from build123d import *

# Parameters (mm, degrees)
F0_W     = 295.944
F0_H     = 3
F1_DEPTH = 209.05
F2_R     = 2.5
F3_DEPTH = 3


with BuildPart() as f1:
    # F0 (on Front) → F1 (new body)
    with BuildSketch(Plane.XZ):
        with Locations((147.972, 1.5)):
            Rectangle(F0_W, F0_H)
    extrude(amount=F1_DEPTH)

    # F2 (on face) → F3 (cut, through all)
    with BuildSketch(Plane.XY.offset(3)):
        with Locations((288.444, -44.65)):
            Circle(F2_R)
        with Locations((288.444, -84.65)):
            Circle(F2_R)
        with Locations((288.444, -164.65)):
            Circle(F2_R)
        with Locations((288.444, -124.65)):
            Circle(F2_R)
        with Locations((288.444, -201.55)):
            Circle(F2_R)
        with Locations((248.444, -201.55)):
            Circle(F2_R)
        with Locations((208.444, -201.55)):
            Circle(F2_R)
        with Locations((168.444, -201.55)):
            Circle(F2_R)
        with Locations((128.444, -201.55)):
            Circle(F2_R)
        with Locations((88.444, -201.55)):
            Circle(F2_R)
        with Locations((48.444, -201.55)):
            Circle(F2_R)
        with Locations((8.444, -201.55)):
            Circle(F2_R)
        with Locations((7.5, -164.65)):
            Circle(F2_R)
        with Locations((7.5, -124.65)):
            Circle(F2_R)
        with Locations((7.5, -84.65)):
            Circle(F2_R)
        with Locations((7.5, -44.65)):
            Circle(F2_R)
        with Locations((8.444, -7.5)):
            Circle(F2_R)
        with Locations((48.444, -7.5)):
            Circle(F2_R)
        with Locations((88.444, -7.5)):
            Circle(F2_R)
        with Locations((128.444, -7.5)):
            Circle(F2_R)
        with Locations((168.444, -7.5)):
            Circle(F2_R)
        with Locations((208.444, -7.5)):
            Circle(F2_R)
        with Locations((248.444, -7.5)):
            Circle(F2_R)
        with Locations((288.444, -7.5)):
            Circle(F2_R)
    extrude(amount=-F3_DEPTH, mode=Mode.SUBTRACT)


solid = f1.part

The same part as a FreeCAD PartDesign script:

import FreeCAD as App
import Part
import Sketcher
from FreeCAD import Vector
Q = App.Units.Quantity


def add_polygon(sketch, points):
    """Adds a closed chain of lines whose ends are joined by coincident constraints."""
    first, n = sketch.GeometryCount, len(points)
    for a, b in zip(points, points[1:] + points[:1]):
        sketch.addGeometry(Part.LineSegment(App.Vector(*a, 0), App.Vector(*b, 0)), False)
    for i in range(n):
        sketch.addConstraint(Sketcher.Constraint("Coincident", first + i, 2, first + (i + 1) % n, 1))

doc = App.newDocument("Part")
body = doc.addObject("PartDesign::Body", "Body")

# Sketch on XZ plane
sketch1 = body.newObject("Sketcher::SketchObject", "Sketch")
sketch1.AttachmentSupport = (doc.getObject("XZ_Plane"), [""])
sketch1.MapMode = "FlatFace"
add_polygon(sketch1, [(0, 3), (0, 0), (295.9, 0), (295.9, 3)])  # lines 0-3
sketch1.addConstraint([
    Sketcher.Constraint("Vertical", 0),
    Sketcher.Constraint("Horizontal", 1),
    Sketcher.Constraint("Vertical", 2),
    Sketcher.Constraint("Horizontal", 3),
    Sketcher.Constraint("Coincident", 0, 2, -1, 1),
    Sketcher.Constraint("DistanceY", 0, 2, 0, 1, Q("3 mm")),
    Sketcher.Constraint("DistanceX", 1, 1, 1, 2, Q("295.944 mm")),
])
pad1 = body.newObject("PartDesign::Pad", "Pad")
pad1.Profile = sketch1
pad1.Length = 209.05

# Sketch on XY plane
sketch2 = body.newObject("Sketcher::SketchObject", "Sketch001")
sketch2.AttachmentSupport = (doc.getObject("XY_Plane"), [""])
sketch2.MapMode = "FlatFace"
sketch2.AttachmentOffset = App.Placement(Vector(0, 0, 3), App.Rotation())
sketch2.addGeometry([
    Part.Circle(Vector(288.4, -44.6, 0), Vector(0, 0, 1), 2.5),  # 0
    Part.Circle(Vector(288.4, -84.7, 0), Vector(0, 0, 1), 2.5),  # 1
    Part.Circle(Vector(288.4, -164.7, 0), Vector(0, 0, 1), 2.5),  # 2
    Part.Circle(Vector(288.4, -124.7, 0), Vector(0, 0, 1), 2.5),  # 3
    Part.Circle(Vector(288.4, -201.6, 0), Vector(0, 0, 1), 2.5),  # 4
    Part.Circle(Vector(248.4, -201.6, 0), Vector(0, 0, 1), 2.5),  # 5
    Part.Circle(Vector(208.4, -201.6, 0), Vector(0, 0, 1), 2.5),  # 6
    Part.Circle(Vector(168.4, -201.6, 0), Vector(0, 0, 1), 2.5),  # 7
    Part.Circle(Vector(128.4, -201.6, 0), Vector(0, 0, 1), 2.5),  # 8
    Part.Circle(Vector(88.4, -201.6, 0), Vector(0, 0, 1), 2.5),  # 9
    Part.Circle(Vector(48.4, -201.6, 0), Vector(0, 0, 1), 2.5),  # 10
    Part.Circle(Vector(8.4, -201.6, 0), Vector(0, 0, 1), 2.5),  # 11
    Part.Circle(Vector(7.5, -164.7, 0), Vector(0, 0, 1), 2.5),  # 12
    Part.Circle(Vector(7.5, -124.7, 0), Vector(0, 0, 1), 2.5),  # 13
    Part.Circle(Vector(7.5, -84.7, 0), Vector(0, 0, 1), 2.5),  # 14
    Part.Circle(Vector(7.5, -44.6, 0), Vector(0, 0, 1), 2.5),  # 15
    Part.Circle(Vector(8.4, -7.5, 0), Vector(0, 0, 1), 2.5),  # 16
    Part.Circle(Vector(48.4, -7.5, 0), Vector(0, 0, 1), 2.5),  # 17
    Part.Circle(Vector(88.4, -7.5, 0), Vector(0, 0, 1), 2.5),  # 18
    Part.Circle(Vector(128.4, -7.5, 0), Vector(0, 0, 1), 2.5),  # 19
    Part.Circle(Vector(168.4, -7.5, 0), Vector(0, 0, 1), 2.5),  # 20
    Part.Circle(Vector(208.4, -7.5, 0), Vector(0, 0, 1), 2.5),  # 21
    Part.Circle(Vector(248.4, -7.5, 0), Vector(0, 0, 1), 2.5),  # 22
    Part.Circle(Vector(288.4, -7.5, 0), Vector(0, 0, 1), 2.5),  # 23
], False)
sketch2.addConstraint([
    Sketcher.Constraint("Equal", 0, 1),
    Sketcher.Constraint("Equal", 1, 2),
    Sketcher.Constraint("Equal", 2, 3),
    Sketcher.Constraint("Equal", 3, 4),
    Sketcher.Constraint("Equal", 4, 5),
    Sketcher.Constraint("Equal", 5, 6),
    Sketcher.Constraint("Equal", 6, 7),
    Sketcher.Constraint("Equal", 7, 8),
    Sketcher.Constraint("Equal", 8, 9),
    Sketcher.Constraint("Equal", 9, 10),
    Sketcher.Constraint("Equal", 10, 11),
    Sketcher.Constraint("Equal", 11, 12),
    Sketcher.Constraint("Equal", 12, 13),
    Sketcher.Constraint("Equal", 13, 14),
    Sketcher.Constraint("Equal", 14, 15),
    Sketcher.Constraint("Equal", 15, 16),
    Sketcher.Constraint("Equal", 16, 17),
    Sketcher.Constraint("Equal", 17, 18),
    Sketcher.Constraint("Equal", 18, 19),
    Sketcher.Constraint("Equal", 19, 20),
    Sketcher.Constraint("Equal", 20, 21),
    Sketcher.Constraint("Equal", 21, 22),
    Sketcher.Constraint("Equal", 22, 23),
    Sketcher.Constraint("Horizontal", 4, 3, 5, 3),
    Sketcher.Constraint("Horizontal", 5, 3, 6, 3),
    Sketcher.Constraint("Horizontal", 6, 3, 7, 3),
    Sketcher.Constraint("Horizontal", 7, 3, 8, 3),
    Sketcher.Constraint("Horizontal", 8, 3, 9, 3),
    Sketcher.Constraint("Horizontal", 9, 3, 10, 3),
    Sketcher.Constraint("Horizontal", 10, 3, 11, 3),
    Sketcher.Constraint("Horizontal", 2, 3, 12, 3),
    Sketcher.Constraint("Horizontal", 3, 3, 13, 3),
    Sketcher.Constraint("Horizontal", 1, 3, 14, 3),
    Sketcher.Constraint("Horizontal", 0, 3, 15, 3),
    Sketcher.Constraint("Horizontal", 16, 3, 17, 3),
    Sketcher.Constraint("Horizontal", 17, 3, 18, 3),
    Sketcher.Constraint("Horizontal", 18, 3, 19, 3),
    Sketcher.Constraint("Horizontal", 19, 3, 20, 3),
    Sketcher.Constraint("Horizontal", 20, 3, 21, 3),
    Sketcher.Constraint("Horizontal", 21, 3, 22, 3),
    Sketcher.Constraint("Horizontal", 22, 3, 23, 3),
    Sketcher.Constraint("Vertical", 0, 3, 1, 3),
    Sketcher.Constraint("Vertical", 1, 3, 2, 3),
    Sketcher.Constraint("Vertical", 2, 3, 3, 3),
    Sketcher.Constraint("Vertical", 3, 3, 4, 3),
    Sketcher.Constraint("Vertical", 12, 3, 13, 3),
    Sketcher.Constraint("Vertical", 13, 3, 14, 3),
    Sketcher.Constraint("Vertical", 14, 3, 15, 3),
    Sketcher.Constraint("Vertical", 11, 3, 16, 3),
    Sketcher.Constraint("Vertical", 10, 3, 17, 3),
    Sketcher.Constraint("Vertical", 9, 3, 18, 3),
    Sketcher.Constraint("Vertical", 8, 3, 19, 3),
    Sketcher.Constraint("Vertical", 7, 3, 20, 3),
    Sketcher.Constraint("Vertical", 6, 3, 21, 3),
    Sketcher.Constraint("Vertical", 5, 3, 22, 3),
    Sketcher.Constraint("Vertical", 4, 3, 23, 3),
    Sketcher.Constraint("Diameter", 0, Q("5 mm")),
    Sketcher.Constraint("DistanceY", 1, 3, 0, 3, Q("40 mm")),
    Sketcher.Constraint("DistanceY", 2, 3, 1, 3, Q("80 mm")),
    Sketcher.Constraint("DistanceY", 3, 3, 1, 3, Q("40 mm")),
    Sketcher.Constraint("DistanceX", 5, 3, 4, 3, Q("40 mm")),
    Sketcher.Constraint("DistanceX", 6, 3, 5, 3, Q("40 mm")),
    Sketcher.Constraint("DistanceX", 7, 3, 6, 3, Q("40 mm")),
    Sketcher.Constraint("DistanceX", 8, 3, 7, 3, Q("40 mm")),
    Sketcher.Constraint("DistanceX", 9, 3, 8, 3, Q("40 mm")),
    Sketcher.Constraint("DistanceX", 10, 3, 9, 3, Q("40 mm")),
    Sketcher.Constraint("DistanceX", 11, 3, 10, 3, Q("40 mm")),
    Sketcher.Constraint("DistanceX", -1, 1, 12, 3, Q("7.5 mm")),
    Sketcher.Constraint("DistanceY", 16, 3, -1, 1, Q("7.5 mm")),
    Sketcher.Constraint("DistanceY", 4, 3, 2, 3, Q("36.9 mm")),
    Sketcher.Constraint("DistanceY", 0, 3, -1, 1, Q("44.65 mm")),
    Sketcher.Constraint("DistanceX", -1, 1, 0, 3, Q("288.444 mm")),
])
pocket1 = body.newObject("PartDesign::Pocket", "Pocket")
pocket1.Profile = sketch2
pocket1.Type = "ThroughAll"

doc.recompute()
